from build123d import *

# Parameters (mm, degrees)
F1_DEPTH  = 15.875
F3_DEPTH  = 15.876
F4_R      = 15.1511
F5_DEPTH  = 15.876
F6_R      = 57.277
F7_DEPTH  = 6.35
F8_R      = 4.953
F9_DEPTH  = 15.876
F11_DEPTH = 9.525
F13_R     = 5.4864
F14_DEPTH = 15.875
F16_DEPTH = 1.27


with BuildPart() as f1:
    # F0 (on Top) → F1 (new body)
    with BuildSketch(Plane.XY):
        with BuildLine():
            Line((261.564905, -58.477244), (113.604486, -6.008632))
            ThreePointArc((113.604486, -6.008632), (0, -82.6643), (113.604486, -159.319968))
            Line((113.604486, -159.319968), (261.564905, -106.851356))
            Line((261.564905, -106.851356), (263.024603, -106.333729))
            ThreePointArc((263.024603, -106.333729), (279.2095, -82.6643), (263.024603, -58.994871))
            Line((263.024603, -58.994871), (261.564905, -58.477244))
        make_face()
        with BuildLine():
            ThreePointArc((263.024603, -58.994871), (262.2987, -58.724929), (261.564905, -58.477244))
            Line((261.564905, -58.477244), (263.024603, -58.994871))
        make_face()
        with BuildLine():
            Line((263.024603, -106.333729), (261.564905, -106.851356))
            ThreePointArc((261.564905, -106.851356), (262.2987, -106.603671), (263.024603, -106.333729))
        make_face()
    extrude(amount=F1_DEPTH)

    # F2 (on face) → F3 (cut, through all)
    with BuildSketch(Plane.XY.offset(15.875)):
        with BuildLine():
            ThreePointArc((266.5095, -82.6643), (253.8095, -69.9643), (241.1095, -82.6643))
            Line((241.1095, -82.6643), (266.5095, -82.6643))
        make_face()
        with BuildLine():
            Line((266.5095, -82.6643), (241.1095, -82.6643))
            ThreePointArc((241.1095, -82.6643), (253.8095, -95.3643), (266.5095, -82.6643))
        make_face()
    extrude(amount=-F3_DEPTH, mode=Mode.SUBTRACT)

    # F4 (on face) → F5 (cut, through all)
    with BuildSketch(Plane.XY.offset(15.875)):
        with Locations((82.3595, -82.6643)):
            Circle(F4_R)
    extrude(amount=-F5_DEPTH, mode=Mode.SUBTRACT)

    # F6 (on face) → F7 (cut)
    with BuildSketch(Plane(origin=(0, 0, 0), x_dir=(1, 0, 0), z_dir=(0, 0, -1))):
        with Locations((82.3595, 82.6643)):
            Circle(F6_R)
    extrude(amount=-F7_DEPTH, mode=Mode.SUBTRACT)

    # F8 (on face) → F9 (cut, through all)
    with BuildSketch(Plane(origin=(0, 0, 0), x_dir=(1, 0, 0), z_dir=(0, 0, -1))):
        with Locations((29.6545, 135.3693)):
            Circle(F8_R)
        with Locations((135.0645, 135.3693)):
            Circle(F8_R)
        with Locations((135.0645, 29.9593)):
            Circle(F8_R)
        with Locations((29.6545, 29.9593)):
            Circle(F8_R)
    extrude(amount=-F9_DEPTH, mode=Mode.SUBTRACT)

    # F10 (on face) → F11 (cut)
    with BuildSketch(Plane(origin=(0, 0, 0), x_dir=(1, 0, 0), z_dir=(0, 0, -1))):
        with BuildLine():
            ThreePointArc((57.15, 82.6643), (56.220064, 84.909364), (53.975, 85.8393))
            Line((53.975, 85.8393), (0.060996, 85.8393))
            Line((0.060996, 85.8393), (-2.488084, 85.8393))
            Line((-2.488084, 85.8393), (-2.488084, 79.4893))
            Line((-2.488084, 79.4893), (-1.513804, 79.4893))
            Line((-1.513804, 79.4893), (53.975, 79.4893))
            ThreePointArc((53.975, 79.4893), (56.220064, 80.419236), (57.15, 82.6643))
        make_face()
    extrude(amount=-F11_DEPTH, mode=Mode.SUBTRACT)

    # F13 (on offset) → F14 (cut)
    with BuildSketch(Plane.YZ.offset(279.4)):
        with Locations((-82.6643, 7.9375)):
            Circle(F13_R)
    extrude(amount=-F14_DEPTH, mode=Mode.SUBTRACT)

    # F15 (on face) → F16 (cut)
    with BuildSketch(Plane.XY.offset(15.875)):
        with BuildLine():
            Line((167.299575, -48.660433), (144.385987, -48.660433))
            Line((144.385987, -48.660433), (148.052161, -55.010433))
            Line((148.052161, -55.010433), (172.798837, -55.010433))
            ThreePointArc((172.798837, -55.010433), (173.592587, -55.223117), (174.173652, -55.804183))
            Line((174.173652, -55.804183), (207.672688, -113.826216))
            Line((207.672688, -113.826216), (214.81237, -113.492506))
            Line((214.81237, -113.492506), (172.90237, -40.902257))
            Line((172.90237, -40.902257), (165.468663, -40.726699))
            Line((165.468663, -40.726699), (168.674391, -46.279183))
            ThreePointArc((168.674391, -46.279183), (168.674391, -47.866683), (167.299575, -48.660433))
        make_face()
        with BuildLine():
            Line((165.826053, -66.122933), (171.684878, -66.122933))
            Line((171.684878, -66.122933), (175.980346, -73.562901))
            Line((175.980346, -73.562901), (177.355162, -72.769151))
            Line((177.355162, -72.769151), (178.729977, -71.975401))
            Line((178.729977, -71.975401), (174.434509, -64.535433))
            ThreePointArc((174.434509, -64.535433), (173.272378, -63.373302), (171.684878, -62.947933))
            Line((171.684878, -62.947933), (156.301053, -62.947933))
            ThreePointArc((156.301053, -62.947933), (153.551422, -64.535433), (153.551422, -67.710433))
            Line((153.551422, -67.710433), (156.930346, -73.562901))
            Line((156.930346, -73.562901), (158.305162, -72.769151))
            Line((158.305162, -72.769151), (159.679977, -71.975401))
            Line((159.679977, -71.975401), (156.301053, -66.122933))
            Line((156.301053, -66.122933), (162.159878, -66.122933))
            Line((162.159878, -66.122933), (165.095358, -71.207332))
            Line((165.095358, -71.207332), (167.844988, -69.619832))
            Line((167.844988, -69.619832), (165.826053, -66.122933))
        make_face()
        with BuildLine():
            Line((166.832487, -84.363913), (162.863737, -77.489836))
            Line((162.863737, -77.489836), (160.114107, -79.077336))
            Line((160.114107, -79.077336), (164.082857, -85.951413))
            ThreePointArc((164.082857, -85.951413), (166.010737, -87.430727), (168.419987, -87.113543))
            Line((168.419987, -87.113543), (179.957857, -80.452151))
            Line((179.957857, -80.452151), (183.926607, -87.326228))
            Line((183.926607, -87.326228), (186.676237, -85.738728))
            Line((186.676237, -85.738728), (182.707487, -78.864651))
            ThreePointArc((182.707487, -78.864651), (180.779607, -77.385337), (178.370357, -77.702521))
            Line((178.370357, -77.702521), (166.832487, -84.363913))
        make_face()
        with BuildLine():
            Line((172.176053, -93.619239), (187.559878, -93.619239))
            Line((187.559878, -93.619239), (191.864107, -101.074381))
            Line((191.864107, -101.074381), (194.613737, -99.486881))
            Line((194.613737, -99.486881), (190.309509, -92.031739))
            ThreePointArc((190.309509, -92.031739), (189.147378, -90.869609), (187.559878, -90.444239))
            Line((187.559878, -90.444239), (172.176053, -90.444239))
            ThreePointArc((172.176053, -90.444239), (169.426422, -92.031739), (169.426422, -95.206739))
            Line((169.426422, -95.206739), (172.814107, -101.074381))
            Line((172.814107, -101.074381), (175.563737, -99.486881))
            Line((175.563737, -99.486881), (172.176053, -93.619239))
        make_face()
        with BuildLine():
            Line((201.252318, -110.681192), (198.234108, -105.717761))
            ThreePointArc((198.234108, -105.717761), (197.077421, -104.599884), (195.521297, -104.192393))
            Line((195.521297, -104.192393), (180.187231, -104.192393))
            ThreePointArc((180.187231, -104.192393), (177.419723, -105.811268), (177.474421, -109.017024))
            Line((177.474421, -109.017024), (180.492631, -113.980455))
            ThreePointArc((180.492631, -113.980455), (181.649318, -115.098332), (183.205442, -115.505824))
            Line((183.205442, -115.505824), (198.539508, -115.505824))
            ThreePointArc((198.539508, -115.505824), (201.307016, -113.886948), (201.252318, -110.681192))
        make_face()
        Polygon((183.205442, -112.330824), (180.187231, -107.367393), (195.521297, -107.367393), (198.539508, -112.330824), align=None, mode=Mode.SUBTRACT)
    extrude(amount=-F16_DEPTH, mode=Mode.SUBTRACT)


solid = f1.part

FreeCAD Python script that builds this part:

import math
import FreeCAD as App
import Part
import Sketcher
Q = App.Units.Quantity


def add_polygon(sketch, points):
    """Adds a closed chain of lines whose ends are joined by coincident constraints."""
    first, n = sketch.GeometryCount, len(points)
    for a, b in zip(points, points[1:] + points[:1]):
        sketch.addGeometry(Part.LineSegment(App.Vector(*a, 0), App.Vector(*b, 0)), False)
    for i in range(n):
        sketch.addConstraint(Sketcher.Constraint("Coincident", first + i, 2, first + (i + 1) % n, 1))

doc = App.newDocument("Part")
body = doc.addObject("PartDesign::Body", "Body")

# Sketch on XY plane
sketch1 = doc.addObject("Sketcher::SketchObject", "Sketch")
body.addObject(sketch1)
sketch1.AttachmentSupport = (doc.XY_Plane, [""])
sketch1.MapMode = "FlatFace"
sketch1.addGeometry(Part.LineSegment(App.Vector(261.564905, -58.477244, 0), App.Vector(113.604486, -6.008632, 0)), False)
sketch1.addGeometry(Part.ArcOfCircle(Part.Circle(App.Vector(82.6643, -82.6643, 0), App.Vector(0, 0, 1), 82.6643), math.radians(68.019738), math.radians(291.980262)), False)
sketch1.addGeometry(Part.LineSegment(App.Vector(113.604486, -159.319968, 0), App.Vector(261.564905, -106.851356, 0)), False)
sketch1.addGeometry(Part.ArcOfCircle(Part.Circle(App.Vector(253.809671, -82.664776, 0), App.Vector(0, 0, 1), 25.399494), math.radians(-72.221967), math.radians(-68.727758)), False)
sketch1.addGeometry(Part.ArcOfCircle(Part.Circle(App.Vector(253.8095, -82.6643, 0), App.Vector(0, 0, 1), 25.4), math.radians(-68.727788), math.radians(68.727788)), False)
sketch1.addGeometry(Part.ArcOfCircle(Part.Circle(App.Vector(253.809671, -82.663824, 0), App.Vector(0, 0, 1), 25.399494), math.radians(68.727758), math.radians(72.221967)), False)
sketch1.addConstraint(Sketcher.Constraint("Coincident", 0, 2, 1, 1))
sketch1.addConstraint(Sketcher.Constraint("Coincident", 1, 2, 2, 1))
sketch1.addConstraint(Sketcher.Constraint("Coincident", 2, 2, 3, 1))
sketch1.addConstraint(Sketcher.Constraint("Tangent", 3, 2, 4, 1))
sketch1.addConstraint(Sketcher.Constraint("Tangent", 4, 2, 5, 1))
sketch1.addConstraint(Sketcher.Constraint("Coincident", 5, 2, 0, 1))
sketch1.addConstraint(Sketcher.Constraint("Equal", 3, 5))
sketch1.addConstraint(Sketcher.Constraint("Horizontal", 1, 3, 4, 3))
sketch1.addConstraint(Sketcher.Constraint("Vertical", 0, 2, 1, 2))
sketch1.addConstraint(Sketcher.Constraint("Vertical", 3, 2, 4, 2))
sketch1.addConstraint(Sketcher.Constraint("Vertical", 2, 2, 5, 2))
sketch1.addConstraint(Sketcher.Constraint("Radius", 4, Q("1 in")))
sketch1.addConstraint(Sketcher.Constraint("Radius", 1, Q("3.2545 in")))
sketch1.addConstraint(Sketcher.Constraint("DistanceX", 1, 3, 4, 3, Q("6.738 in")))
sketch1.addConstraint(Sketcher.Constraint("DistanceX", -1, 1, 1, 3, Q("3.2545 in")))
sketch1.addConstraint(Sketcher.Constraint("DistanceY", 1, 3, -1, 1, Q("3.2545 in")))
sketch1.addConstraint(Sketcher.Constraint("Radius", 3, Q("25.399494 mm")))
sketch1.addConstraint(Sketcher.Constraint("DistanceX", 2, 2, 3, 2, Q("1.459698 mm")))
sketch1.addConstraint(Sketcher.Constraint("DistanceY", 1, 2, -1, 1, Q("159.319968 mm")))
sketch1.addConstraint(Sketcher.Constraint("DistanceY", 3, 2, -1, 1, Q("106.333729 mm")))
pad1 = doc.addObject("PartDesign::Pad", "Pad")
body.addObject(pad1)
pad1.Profile = sketch1
pad1.Length = Q("0.625 in")

# Sketch on XY plane
sketch2 = doc.addObject("Sketcher::SketchObject", "Sketch001")
body.addObject(sketch2)
sketch2.AttachmentSupport = (doc.XY_Plane, [""])
sketch2.MapMode = "FlatFace"
sketch2.AttachmentOffset = App.Placement(App.Vector(0, 0, 0.625 * 25.4), App.Rotation())
sketch2.addGeometry(Part.Circle(App.Vector(253.8095, -82.6643, 0), App.Vector(0, 0, 1), 12.7), False)
sketch2.addConstraint(Sketcher.Constraint("Diameter", 0, Q("1 in")))
sketch2.addConstraint(Sketcher.Constraint("DistanceX", -1, 1, 0, 3, Q("9.9925 in")))
sketch2.addConstraint(Sketcher.Constraint("DistanceY", 0, 3, -1, 1, Q("3.2545 in")))
pocket1 = doc.addObject("PartDesign::Pocket", "Pocket")
body.addObject(pocket1)
pocket1.Profile = sketch2
pocket1.Type = "ThroughAll"

# Sketch on XY plane
sketch3 = doc.addObject("Sketcher::SketchObject", "Sketch002")
body.addObject(sketch3)
sketch3.AttachmentSupport = (doc.XY_Plane, [""])
sketch3.MapMode = "FlatFace"
sketch3.AttachmentOffset = App.Placement(App.Vector(0, 0, 0.625 * 25.4), App.Rotation())
sketch3.addGeometry(Part.Circle(App.Vector(82.3595, -82.6643, 0), App.Vector(0, 0, 1), 15.1511), False)
sketch3.addConstraint(Sketcher.Constraint("Diameter", 0, Q("1.193 in")))
sketch3.addConstraint(Sketcher.Constraint("DistanceX", -1, 1, 0, 3, Q("3.2425 in")))
sketch3.addConstraint(Sketcher.Constraint("DistanceY", 0, 3, -1, 1, Q("3.2545 in")))
pocket2 = doc.addObject("PartDesign::Pocket", "Pocket001")
body.addObject(pocket2)
pocket2.Profile = sketch3
pocket2.Type = "ThroughAll"

# Sketch on XY plane
sketch4 = doc.addObject("Sketcher::SketchObject", "Sketch003")
body.addObject(sketch4)
sketch4.AttachmentSupport = (doc.XY_Plane, [""])
sketch4.MapMode = "FlatFace"
sketch4.addGeometry(Part.Circle(App.Vector(82.3595, -82.6643, 0), App.Vector(0, 0, 1), 57.277), False)
sketch4.addConstraint(Sketcher.Constraint("Diameter", 0, Q("4.51 in")))
sketch4.addConstraint(Sketcher.Constraint("DistanceX", -1, 1, 0, 3, Q("3.2425 in")))
sketch4.addConstraint(Sketcher.Constraint("DistanceY", 0, 3, -1, 1, Q("3.2545 in")))
pocket3 = doc.addObject("PartDesign::Pocket", "Pocket002")
body.addObject(pocket3)
pocket3.Profile = sketch4
pocket3.Length = Q("0.25 in")
pocket3.Reversed = True

# Sketch on XY plane
sketch5 = doc.addObject("Sketcher::SketchObject", "Sketch004")
body.addObject(sketch5)
sketch5.AttachmentSupport = (doc.XY_Plane, [""])
sketch5.MapMode = "FlatFace"
sketch5.addGeometry(Part.Circle(App.Vector(29.6545, -135.3693, 0), App.Vector(0, 0, 1), 4.953), False)
sketch5.addGeometry(Part.Circle(App.Vector(135.0645, -135.3693, 0), App.Vector(0, 0, 1), 4.953), False)
sketch5.addGeometry(Part.Circle(App.Vector(135.0645, -29.9593, 0), App.Vector(0, 0, 1), 4.953), False)
sketch5.addGeometry(Part.Circle(App.Vector(29.6545, -29.9593, 0), App.Vector(0, 0, 1), 4.953), False)
sketch5.addConstraint(Sketcher.Constraint("Equal", 0, 1))
sketch5.addConstraint(Sketcher.Constraint("Equal", 1, 2))
sketch5.addConstraint(Sketcher.Constraint("Equal", 2, 3))
sketch5.addConstraint(Sketcher.Constraint("Horizontal", 0, 3, 1, 3))
sketch5.addConstraint(Sketcher.Constraint("Horizontal", 2, 3, 3, 3))
sketch5.addConstraint(Sketcher.Constraint("Vertical", 1, 3, 2, 3))
sketch5.addConstraint(Sketcher.Constraint("Vertical", 0, 3, 3, 3))
sketch5.addConstraint(Sketcher.Constraint("Diameter", 0, Q("0.39 in")))
sketch5.addConstraint(Sketcher.Constraint("DistanceX", 0, 3, 1, 3, Q("4.15 in")))
sketch5.addConstraint(Sketcher.Constraint("DistanceY", 1, 3, 2, 3, Q("4.15 in")))
sketch5.addConstraint(Sketcher.Constraint("DistanceX", -1, 1, 0, 3, Q("1.1675 in")))
sketch5.addConstraint(Sketcher.Constraint("DistanceY", 0, 3, -1, 1, Q("5.3295 in")))
pocket4 = doc.addObject("PartDesign::Pocket", "Pocket003")
body.addObject(pocket4)
pocket4.Profile = sketch5
pocket4.Type = "ThroughAll"
pocket4.Reversed = True

# Sketch on XY plane
sketch6 = doc.addObject("Sketcher::SketchObject", "Sketch005")
body.addObject(sketch6)
sketch6.AttachmentSupport = (doc.XY_Plane, [""])
sketch6.MapMode = "FlatFace"
sketch6.addGeometry(Part.ArcOfCircle(Part.Circle(App.Vector(53.975, -82.6643, 0), App.Vector(0, 0, 1), 3.175), math.radians(-89.999998), math.radians(-0.000002)), False)
sketch6.addGeometry(Part.LineSegment(App.Vector(53.975, -85.8393, 0), App.Vector(-2.488084, -85.8393, 0)), False)
sketch6.addGeometry(Part.LineSegment(App.Vector(-2.488084, -85.8393, 0), App.Vector(-2.488084, -79.4893, 0)), False)
sketch6.addGeometry(Part.LineSegment(App.Vector(-2.488084, -79.4893, 0), App.Vector(53.975, -79.4893, 0)), False)
sketch6.addGeometry(Part.ArcOfCircle(Part.Circle(App.Vector(53.975, -82.6643, 0), App.Vector(0, 0, 1), 3.175), math.radians(0.000002), math.radians(89.999998)), False)
sketch6.addConstraint(Sketcher.Constraint("Tangent", 0, 1, 1, 1))
sketch6.addConstraint(Sketcher.Constraint("Coincident", 1, 2, 2, 1))
sketch6.addConstraint(Sketcher.Constraint("Coincident", 2, 2, 3, 1))
sketch6.addConstraint(Sketcher.Constraint("Tangent", 3, 2, 4, 2))
sketch6.addConstraint(Sketcher.Constraint("Tangent", 4, 1, 0, 2))
sketch6.addConstraint(Sketcher.Constraint("Horizontal", 1))
sketch6.addConstraint(Sketcher.Constraint("Vertical", 2))
sketch6.addConstraint(Sketcher.Constraint("Horizontal", 3))
sketch6.addConstraint(Sketcher.Constraint("Equal", 0, 4))
sketch6.addConstraint(Sketcher.Constraint("Horizontal", 0, 3, 4, 1))
sketch6.addConstraint(Sketcher.Constraint("Radius", 0, Q("0.125 in")))
sketch6.addConstraint(Sketcher.Constraint("DistanceX", -1, 1, 4, 1, Q("2.25 in")))
sketch6.addConstraint(Sketcher.Constraint("DistanceY", 0, 3, -1, 1, Q("3.2545 in")))
sketch6.addConstraint(Sketcher.Constraint("DistanceX", 1, 2, 1, 1, Q("56.463084 mm")))
pocket5 = doc.addObject("PartDesign::Pocket", "Pocket004")
body.addObject(pocket5)
pocket5.Profile = sketch6
pocket5.Length = Q("0.375 in")
pocket5.Reversed = True

# Sketch on YZ plane
sketch7 = doc.addObject("Sketcher::SketchObject", "Sketch006")
body.addObject(sketch7)
sketch7.AttachmentSupport = (doc.YZ_Plane, [""])
sketch7.MapMode = "FlatFace"
sketch7.AttachmentOffset = App.Placement(App.Vector(0, 0, 11 * 25.4), App.Rotation())
sketch7.addGeometry(Part.Circle(App.Vector(-82.6643, 7.9375, 0), App.Vector(0, 0, 1), 5.4864), False)
sketch7.addConstraint(Sketcher.Constraint("Diameter", 0, Q("0.432 in")))
sketch7.addConstraint(Sketcher.Constraint("DistanceY", -1, 1, 0, 3, Q("0.3125 in")))
sketch7.addConstraint(Sketcher.Constraint("DistanceX", 0, 3, -1, 1, Q("3.2545 in")))
pocket6 = doc.addObject("PartDesign::Pocket", "Pocket005")
body.addObject(pocket6)
pocket6.Profile = sketch7
pocket6.Length = Q("0.625 in")

# Sketch on XY plane
sketch8 = doc.addObject("Sketcher::SketchObject", "Sketch007")
body.addObject(sketch8)
sketch8.AttachmentSupport = (doc.XY_Plane, [""])
sketch8.MapMode = "FlatFace"
sketch8.AttachmentOffset = App.Placement(App.Vector(0, 0, 0.625 * 25.4), App.Rotation())
sketch8.addGeometry(Part.LineSegment(App.Vector(167.299575, -48.660433, 0), App.Vector(144.385987, -48.660433, 0)), False)  # 0
sketch8.addGeometry(Part.LineSegment(App.Vector(144.385987, -48.660433, 0), App.Vector(148.052161, -55.010433, 0)), False)  # 1
sketch8.addGeometry(Part.LineSegment(App.Vector(148.052161, -55.010433, 0), App.Vector(172.798837, -55.010433, 0)), False)  # 2
sketch8.addGeometry(Part.ArcOfCircle(Part.Circle(App.Vector(172.798839, -56.597928, 0), App.Vector(0, 0, 1), 1.587495), math.radians(29.9999), math.radians(90.000089)), False)  # 3
sketch8.addGeometry(Part.LineSegment(App.Vector(174.173652, -55.804183, 0), App.Vector(207.672688, -113.826216, 0)), False)  # 4
sketch8.addGeometry(Part.LineSegment(App.Vector(207.672688, -113.826216, 0), App.Vector(214.81237, -113.492506, 0)), False)  # 5
sketch8.addGeometry(Part.LineSegment(App.Vector(214.81237, -113.492506, 0), App.Vector(172.90237, -40.902257, 0)), False)  # 6
sketch8.addGeometry(Part.LineSegment(App.Vector(172.90237, -40.902257, 0), App.Vector(165.468663, -40.726699, 0)), False)  # 7
sketch8.addGeometry(Part.LineSegment(App.Vector(165.468663, -40.726699, 0), App.Vector(168.674391, -46.279183, 0)), False)  # 8
sketch8.addGeometry(Part.ArcOfCircle(Part.Circle(App.Vector(167.299576, -47.072933, 0), App.Vector(0, 0, 1), 1.5875), math.radians(-90.000024), math.radians(30)), False)  # 9
sketch8.addGeometry(Part.LineSegment(App.Vector(165.826053, -66.122933, 0), App.Vector(171.684878, -66.122933, 0)), False)  # 10
sketch8.addGeometry(Part.LineSegment(App.Vector(171.684878, -66.122933, 0), App.Vector(175.980346, -73.562901, 0)), False)  # 11
sketch8.addGeometry(Part.LineSegment(App.Vector(175.980346, -73.562901, 0), App.Vector(177.355162, -72.769151, 0)), False)  # 12
sketch8.addGeometry(Part.LineSegment(App.Vector(177.355162, -72.769151, 0), App.Vector(178.729977, -71.975401, 0)), False)  # 13
sketch8.addGeometry(Part.LineSegment(App.Vector(178.729977, -71.975401, 0), App.Vector(174.434509, -64.535433, 0)), False)  # 14
sketch8.addGeometry(Part.ArcOfCircle(Part.Circle(App.Vector(171.684879, -66.122932, 0), App.Vector(0, 0, 1), 3.174999), math.radians(29.999992), math.radians(90.000015)), False)  # 15
sketch8.addGeometry(Part.LineSegment(App.Vector(171.684878, -62.947933, 0), App.Vector(156.301053, -62.947933, 0)), False)  # 16
sketch8.addGeometry(Part.ArcOfCircle(Part.Circle(App.Vector(156.301053, -66.122933, 0), App.Vector(0, 0, 1), 3.175), math.radians(89.999994), math.radians(210)), False)  # 17
sketch8.addGeometry(Part.LineSegment(App.Vector(153.551422, -67.710433, 0), App.Vector(156.930346, -73.562901, 0)), False)  # 18
sketch8.addGeometry(Part.LineSegment(App.Vector(156.930346, -73.562901, 0), App.Vector(158.305162, -72.769151, 0)), False)  # 19
sketch8.addGeometry(Part.LineSegment(App.Vector(158.305162, -72.769151, 0), App.Vector(159.679977, -71.975401, 0)), False)  # 20
sketch8.addGeometry(Part.LineSegment(App.Vector(159.679977, -71.975401, 0), App.Vector(156.301053, -66.122933, 0)), False)  # 21
sketch8.addGeometry(Part.LineSegment(App.Vector(156.301053, -66.122933, 0), App.Vector(162.159878, -66.122933, 0)), False)  # 22
sketch8.addGeometry(Part.LineSegment(App.Vector(162.159878, -66.122933, 0), App.Vector(165.095358, -71.207332, 0)), False)  # 23
sketch8.addGeometry(Part.LineSegment(App.Vector(165.095358, -71.207332, 0), App.Vector(167.844988, -69.619832, 0)), False)  # 24
sketch8.addGeometry(Part.LineSegment(App.Vector(167.844988, -69.619832, 0), App.Vector(165.826053, -66.122933, 0)), False)  # 25
sketch8.addGeometry(Part.LineSegment(App.Vector(166.832487, -84.363913, 0), App.Vector(162.863737, -77.489836, 0)), False)  # 26
sketch8.addGeometry(Part.LineSegment(App.Vector(162.863737, -77.489836, 0), App.Vector(160.114107, -79.077336, 0)), False)  # 27
sketch8.addGeometry(Part.LineSegment(App.Vector(160.114107, -79.077336, 0), App.Vector(164.082857, -85.951413, 0)), False)  # 28
sketch8.addGeometry(Part.ArcOfCircle(Part.Circle(App.Vector(166.832487, -84.363913, 0), App.Vector(0, 0, 1), 3.175), math.radians(-149.999993), math.radians(-59.999996)), False)  # 29
sketch8.addGeometry(Part.LineSegment(App.Vector(168.419987, -87.113543, 0), App.Vector(179.957857, -80.452151, 0)), False)  # 30
sketch8.addGeometry(Part.LineSegment(App.Vector(179.957857, -80.452151, 0), App.Vector(183.926607, -87.326228, 0)), False)  # 31
sketch8.addGeometry(Part.LineSegment(App.Vector(183.926607, -87.326228, 0), App.Vector(186.676237, -85.738728, 0)), False)  # 32
sketch8.addGeometry(Part.LineSegment(App.Vector(186.676237, -85.738728, 0), App.Vector(182.707487, -78.864651, 0)), False)  # 33
sketch8.addGeometry(Part.ArcOfCircle(Part.Circle(App.Vector(179.957857, -80.452151, 0), App.Vector(0, 0, 1), 3.175), math.radians(30.000007), math.radians(120.000004)), False)  # 34
sketch8.addGeometry(Part.LineSegment(App.Vector(178.370357, -77.702521, 0), App.Vector(166.832487, -84.363913, 0)), False)  # 35
sketch8.addGeometry(Part.LineSegment(App.Vector(172.176053, -93.619239, 0), App.Vector(187.559878, -93.619239, 0)), False)  # 36
sketch8.addGeometry(Part.LineSegment(App.Vector(187.559878, -93.619239, 0), App.Vector(191.864107, -101.074381, 0)), False)  # 37
sketch8.addGeometry(Part.LineSegment(App.Vector(191.864107, -101.074381, 0), App.Vector(194.613737, -99.486881, 0)), False)  # 38
sketch8.addGeometry(Part.LineSegment(App.Vector(194.613737, -99.486881, 0), App.Vector(190.309509, -92.031739, 0)), False)  # 39
sketch8.addGeometry(Part.ArcOfCircle(Part.Circle(App.Vector(187.559876, -93.619244, 0), App.Vector(0, 0, 1), 3.175005), math.radians(30.00005), math.radians(89.999956)), False)  # 40
sketch8.addGeometry(Part.LineSegment(App.Vector(187.559878, -90.444239, 0), App.Vector(172.176053, -90.444239, 0)), False)  # 41
sketch8.addGeometry(Part.ArcOfCircle(Part.Circle(App.Vector(172.176053, -93.619239, 0), App.Vector(0, 0, 1), 3.175), math.radians(89.999994), math.radians(210)), False)  # 42
sketch8.addGeometry(Part.LineSegment(App.Vector(169.426422, -95.206739, 0), App.Vector(172.814107, -101.074381, 0)), False)  # 43
sketch8.addGeometry(Part.LineSegment(App.Vector(172.814107, -101.074381, 0), App.Vector(175.563737, -99.486881, 0)), False)  # 44
sketch8.addGeometry(Part.LineSegment(App.Vector(175.563737, -99.486881, 0), App.Vector(172.176053, -93.619239, 0)), False)  # 45
sketch8.addGeometry(Part.LineSegment(App.Vector(201.252318, -110.681192, 0), App.Vector(198.234108, -105.717761, 0)), False)  # 46
sketch8.addGeometry(Part.ArcOfCircle(Part.Circle(App.Vector(195.521298, -107.367392, 0), App.Vector(0, 0, 1), 3.174999), math.radians(31.303349), math.radians(90.00002)), False)  # 47
sketch8.addGeometry(Part.LineSegment(App.Vector(195.521297, -104.192393, 0), App.Vector(180.187231, -104.192393, 0)), False)  # 48
sketch8.addGeometry(Part.ArcOfCircle(Part.Circle(App.Vector(180.18723, -107.367392, 0), App.Vector(0, 0, 1), 3.174999), math.radians(89.99999), math.radians(211.303358)), False)  # 49
sketch8.addGeometry(Part.LineSegment(App.Vector(177.474421, -109.017024, 0), App.Vector(180.492631, -113.980455, 0)), False)  # 50
sketch8.addGeometry(Part.ArcOfCircle(Part.Circle(App.Vector(183.205444, -112.330821, 0), App.Vector(0, 0, 1), 3.175003), math.radians(-148.696633), math.radians(-90.000031)), False)  # 51
sketch8.addGeometry(Part.LineSegment(App.Vector(183.205442, -115.505824, 0), App.Vector(198.539508, -115.505824, 0)), False)  # 52
sketch8.addGeometry(Part.ArcOfCircle(Part.Circle(App.Vector(198.539507, -112.330824, 0), App.Vector(0, 0, 1), 3.175), math.radians(-89.999989), math.radians(31.303348)), False)  # 53
add_polygon(sketch8, [(198.539508, -112.330824), (183.205442, -112.330824), (180.187231, -107.367393), (195.521297, -107.367393)])  # lines 54-57
sketch8.addConstraint(Sketcher.Constraint("Coincident", 0, 2, 1, 1))
sketch8.addConstraint(Sketcher.Constraint("Coincident", 1, 2, 2, 1))
sketch8.addConstraint(Sketcher.Constraint("Tangent", 2, 2, 3, 2))
sketch8.addConstraint(Sketcher.Constraint("Tangent", 3, 1, 4, 1))
sketch8.addConstraint(Sketcher.Constraint("Coincident", 4, 2, 5, 1))
sketch8.addConstraint(Sketcher.Constraint("Coincident", 5, 2, 6, 1))
sketch8.addConstraint(Sketcher.Constraint("Coincident", 6, 2, 7, 1))
sketch8.addConstraint(Sketcher.Constraint("Coincident", 7, 2, 8, 1))
sketch8.addConstraint(Sketcher.Constraint("Tangent", 8, 2, 9, 2))
sketch8.addConstraint(Sketcher.Constraint("Tangent", 9, 1, 0, 1))
sketch8.addConstraint(Sketcher.Constraint("Coincident", 10, 2, 11, 1))
sketch8.addConstraint(Sketcher.Constraint("Coincident", 11, 2, 12, 1))
sketch8.addConstraint(Sketcher.Constraint("Coincident", 12, 2, 13, 1))
sketch8.addConstraint(Sketcher.Constraint("Coincident", 13, 2, 14, 1))
sketch8.addConstraint(Sketcher.Constraint("Tangent", 14, 2, 15, 1))
sketch8.addConstraint(Sketcher.Constraint("Tangent", 15, 2, 16, 1))
sketch8.addConstraint(Sketcher.Constraint("Tangent", 16, 2, 17, 1))
sketch8.addConstraint(Sketcher.Constraint("Tangent", 17, 2, 18, 1))
sketch8.addConstraint(Sketcher.Constraint("Coincident", 18, 2, 19, 1))
sketch8.addConstraint(Sketcher.Constraint("Coincident", 19, 2, 20, 1))
sketch8.addConstraint(Sketcher.Constraint("Coincident", 20, 2, 21, 1))
sketch8.addConstraint(Sketcher.Constraint("Coincident", 21, 2, 22, 1))
sketch8.addConstraint(Sketcher.Constraint("Coincident", 22, 2, 23, 1))
sketch8.addConstraint(Sketcher.Constraint("Coincident", 23, 2, 24, 1))
sketch8.addConstraint(Sketcher.Constraint("Coincident", 24, 2, 25, 1))
sketch8.addConstraint(Sketcher.Constraint("Coincident", 25, 2, 10, 1))
sketch8.addConstraint(Sketcher.Constraint("Coincident", 26, 2, 27, 1))
sketch8.addConstraint(Sketcher.Constraint("Coincident", 27, 2, 28, 1))
sketch8.addConstraint(Sketcher.Constraint("Tangent", 28, 2, 29, 1))
sketch8.addConstraint(Sketcher.Constraint("Tangent", 29, 2, 30, 1))
sketch8.addConstraint(Sketcher.Constraint("Coincident", 30, 2, 31, 1))
sketch8.addConstraint(Sketcher.Constraint("Coincident", 31, 2, 32, 1))
sketch8.addConstraint(Sketcher.Constraint("Coincident", 32, 2, 33, 1))
sketch8.addConstraint(Sketcher.Constraint("Tangent", 33, 2, 34, 1))
sketch8.addConstraint(Sketcher.Constraint("Tangent", 34, 2, 35, 1))
sketch8.addConstraint(Sketcher.Constraint("Coincident", 35, 2, 26, 1))
sketch8.addConstraint(Sketcher.Constraint("Coincident", 36, 2, 37, 1))
sketch8.addConstraint(Sketcher.Constraint("Coincident", 37, 2, 38, 1))
sketch8.addConstraint(Sketcher.Constraint("Coincident", 38, 2, 39, 1))
sketch8.addConstraint(Sketcher.Constraint("Tangent", 39, 2, 40, 1))
sketch8.addConstraint(Sketcher.Constraint("Tangent", 40, 2, 41, 1))
sketch8.addConstraint(Sketcher.Constraint("Tangent", 41, 2, 42, 1))
sketch8.addConstraint(Sketcher.Constraint("Tangent", 42, 2, 43, 1))
sketch8.addConstraint(Sketcher.Constraint("Coincident", 43, 2, 44, 1))
sketch8.addConstraint(Sketcher.Constraint("Coincident", 44, 2, 45, 1))
sketch8.addConstraint(Sketcher.Constraint("Coincident", 45, 2, 36, 1))
sketch8.addConstraint(Sketcher.Constraint("Tangent", 46, 2, 47, 1))
sketch8.addConstraint(Sketcher.Constraint("Tangent", 47, 2, 48, 1))
sketch8.addConstraint(Sketcher.Constraint("Tangent", 48, 2, 49, 1))
sketch8.addConstraint(Sketcher.Constraint("Tangent", 49, 2, 50, 1))
sketch8.addConstraint(Sketcher.Constraint("Tangent", 50, 2, 51, 1))
sketch8.addConstraint(Sketcher.Constraint("Tangent", 51, 2, 52, 1))
sketch8.addConstraint(Sketcher.Constraint("Tangent", 52, 2, 53, 1))
sketch8.addConstraint(Sketcher.Constraint("Tangent", 53, 2, 46, 1))
sketch8.addConstraint(Sketcher.Constraint("Horizontal", 0))
sketch8.addConstraint(Sketcher.Constraint("Horizontal", 2))
sketch8.addConstraint(Sketcher.Constraint("Horizontal", 10))
sketch8.addConstraint(Sketcher.Constraint("Horizontal", 16))
sketch8.addConstraint(Sketcher.Constraint("Horizontal", 22))
sketch8.addConstraint(Sketcher.Constraint("Horizontal", 36))
sketch8.addConstraint(Sketcher.Constraint("Horizontal", 41))
sketch8.addConstraint(Sketcher.Constraint("Horizontal", 48))
sketch8.addConstraint(Sketcher.Constraint("Horizontal", 52))
sketch8.addConstraint(Sketcher.Constraint("Horizontal", 54))
sketch8.addConstraint(Sketcher.Constraint("Horizontal", 56))
sketch8.addConstraint(Sketcher.Constraint("Coincident", 10, 2, 15, 3))
sketch8.addConstraint(Sketcher.Constraint("Coincident", 21, 2, 17, 3))
sketch8.addConstraint(Sketcher.Constraint("Coincident", 30, 2, 34, 3))
sketch8.addConstraint(Sketcher.Constraint("Coincident", 35, 2, 29, 3))
sketch8.addConstraint(Sketcher.Constraint("Coincident", 36, 2, 40, 3))
sketch8.addConstraint(Sketcher.Constraint("Coincident", 45, 2, 42, 3))
sketch8.addConstraint(Sketcher.Constraint("Coincident", 54, 2, 51, 3))
sketch8.addConstraint(Sketcher.Constraint("Coincident", 55, 2, 49, 3))
sketch8.addConstraint(Sketcher.Constraint("Coincident", 56, 2, 47, 3))
sketch8.addConstraint(Sketcher.Constraint("Coincident", 57, 2, 53, 3))
sketch8.addConstraint(Sketcher.Constraint("Equal", 15, 17))
sketch8.addConstraint(Sketcher.Constraint("Equal", 17, 29))
sketch8.addConstraint(Sketcher.Constraint("Equal", 29, 34))
sketch8.addConstraint(Sketcher.Constraint("Equal", 34, 42))
sketch8.addConstraint(Sketcher.Constraint("Equal", 42, 47))
sketch8.addConstraint(Sketcher.Constraint("Equal", 40, 51))
sketch8.addConstraint(Sketcher.Constraint("Parallel", 1, 4))
sketch8.addConstraint(Sketcher.Constraint("Parallel", 4, 6))
sketch8.addConstraint(Sketcher.Constraint("Parallel", 6, 8))
sketch8.addConstraint(Sketcher.Constraint("Parallel", 8, 11))
sketch8.addConstraint(Sketcher.Constraint("Perpendicular", 11, 12))
sketch8.addConstraint(Sketcher.Constraint("Parallel", 12, 13))
sketch8.addConstraint(Sketcher.Constraint("Perpendicular", 13, 14))
sketch8.addConstraint(Sketcher.Constraint("Parallel", 14, 18))
sketch8.addConstraint(Sketcher.Constraint("Perpendicular", 18, 19))
sketch8.addConstraint(Sketcher.Constraint("Parallel", 19, 20))
sketch8.addConstraint(Sketcher.Constraint("Perpendicular", 20, 21))
sketch8.addConstraint(Sketcher.Constraint("Parallel", 21, 23))
sketch8.addConstraint(Sketcher.Constraint("Perpendicular", 23, 24))
sketch8.addConstraint(Sketcher.Constraint("Perpendicular", 24, 25))
sketch8.addConstraint(Sketcher.Constraint("Parallel", 25, 26))
sketch8.addConstraint(Sketcher.Constraint("Perpendicular", 26, 27))
sketch8.addConstraint(Sketcher.Constraint("Perpendicular", 27, 28))
sketch8.addConstraint(Sketcher.Constraint("Perpendicular", 28, 30))
sketch8.addConstraint(Sketcher.Constraint("Perpendicular", 30, 31))
sketch8.addConstraint(Sketcher.Constraint("Perpendicular", 31, 32))
sketch8.addConstraint(Sketcher.Constraint("Perpendicular", 32, 33))
sketch8.addConstraint(Sketcher.Constraint("Perpendicular", 35, 37))
sketch8.addConstraint(Sketcher.Constraint("Perpendicular", 37, 38))
sketch8.addConstraint(Sketcher.Constraint("Perpendicular", 38, 39))
sketch8.addConstraint(Sketcher.Constraint("Parallel", 39, 43))
sketch8.addConstraint(Sketcher.Constraint("Perpendicular", 43, 44))
sketch8.addConstraint(Sketcher.Constraint("Perpendicular", 44, 45))
sketch8.addConstraint(Sketcher.Constraint("Parallel", 46, 50))
sketch8.addConstraint(Sketcher.Constraint("Horizontal", 11, 2, 18, 2))
sketch8.addConstraint(Sketcher.Constraint("Horizontal", 12, 2, 19, 2))
sketch8.addConstraint(Sketcher.Constraint("Horizontal", 37, 2, 43, 2))
sketch8.addConstraint(Sketcher.Constraint("Equal", 10, 22))
sketch8.addConstraint(Sketcher.Constraint("Equal", 16, 36))
sketch8.addConstraint(Sketcher.Constraint("Equal", 12, 13))
sketch8.addConstraint(Sketcher.Constraint("Equal", 24, 27))
sketch8.addConstraint(Sketcher.Constraint("Equal", 28, 31))
sketch8.addConstraint(Sketcher.Constraint("Angle", 1, Q("-60.000001 deg")))
sketch8.addConstraint(Sketcher.Constraint("Radius", 9, Q("0.0625 in")))
sketch8.addConstraint(Sketcher.Constraint("Radius", 15, Q("0.125 in")))
sketch8.addConstraint(Sketcher.Constraint("Distance", 6, Q("3.3 in")))
sketch8.addConstraint(Sketcher.Constraint("Radius", 3, Q("0.0624998 in")))
sketch8.addConstraint(Sketcher.Constraint("Distance", 26, Q("0.3125 in")))
sketch8.addConstraint(Sketcher.Constraint("DistanceX", 0, 2, 0, 1, Q("22.913588 mm")))
sketch8.addConstraint(Sketcher.Constraint("DistanceX", -1, 1, 47, 3, Q("195.521298 mm")))
sketch8.addConstraint(Sketcher.Constraint("DistanceY", 7, 2, -1, 1, Q("40.726699 mm")))
sketch8.addConstraint(Sketcher.Constraint("DistanceY", 11, 2, -1, 1, Q("73.562901 mm")))
sketch8.addConstraint(Sketcher.Constraint("Distance", 1, Q("7.332348 mm")))
sketch8.addConstraint(Sketcher.Constraint("Distance", 7, Q("7.43578 mm")))
sketch8.addConstraint(Sketcher.Constraint("Distance", 23, Q("5.870959 mm")))
sketch8.addConstraint(Sketcher.Constraint("Distance", 43, Q("6.77537 mm")))
sketch8.addConstraint(Sketcher.Constraint("DistanceX", 2, 1, 2, 2, Q("24.746676 mm")))
sketch8.addConstraint(Sketcher.Constraint("DistanceX", 10, 1, 10, 2, Q("5.858825 mm")))
sketch8.addConstraint(Sketcher.Constraint("DistanceX", 48, 2, 48, 1, Q("15.334066 mm")))
sketch8.addConstraint(Sketcher.Constraint("DistanceX", -1, 1, 3, 3, Q("172.798839 mm")))
sketch8.addConstraint(Sketcher.Constraint("DistanceY", 3, 3, -1, 1, Q("56.597928 mm")))
sketch8.addConstraint(Sketcher.Constraint("DistanceX", -1, 1, 15, 3, Q("171.684879 mm")))
sketch8.addConstraint(Sketcher.Constraint("DistanceY", 34, 3, -1, 1, Q("80.452151 mm")))
sketch8.addConstraint(Sketcher.Constraint("DistanceY", 42, 3, -1, 1, Q("93.619239 mm")))
sketch8.addConstraint(Sketcher.Constraint("DistanceY", 51, 3, -1, 1, Q("112.330821 mm")))
sketch8.addConstraint(Sketcher.Constraint("DistanceX", -1, 1, 4, 2, Q("207.672688 mm")))
sketch8.addConstraint(Sketcher.Constraint("DistanceX", -1, 1, 5, 2, Q("214.81237 mm")))
sketch8.addConstraint(Sketcher.Constraint("DistanceX", -1, 1, 12, 2, Q("177.355162 mm")))
sketch8.addConstraint(Sketcher.Constraint("DistanceX", -1, 1, 36, 2, Q("187.559878 mm")))
sketch8.addConstraint(Sketcher.Constraint("DistanceX", -1, 1, 46, 2, Q("198.234108 mm")))
sketch8.addConstraint(Sketcher.Constraint("DistanceY", 46, 2, -1, 1, Q("105.717761 mm")))
sketch8.addConstraint(Sketcher.Constraint("Distance", 30, Q("13.322785 mm")))
sketch8.addConstraint(Sketcher.Constraint("DistanceX", -1, 1, 29, 3, Q("166.832487 mm")))
pocket7 = doc.addObject("PartDesign::Pocket", "Pocket006")
body.addObject(pocket7)
pocket7.Profile = sketch8
pocket7.Length = Q("0.05 in")

doc.recompute()
